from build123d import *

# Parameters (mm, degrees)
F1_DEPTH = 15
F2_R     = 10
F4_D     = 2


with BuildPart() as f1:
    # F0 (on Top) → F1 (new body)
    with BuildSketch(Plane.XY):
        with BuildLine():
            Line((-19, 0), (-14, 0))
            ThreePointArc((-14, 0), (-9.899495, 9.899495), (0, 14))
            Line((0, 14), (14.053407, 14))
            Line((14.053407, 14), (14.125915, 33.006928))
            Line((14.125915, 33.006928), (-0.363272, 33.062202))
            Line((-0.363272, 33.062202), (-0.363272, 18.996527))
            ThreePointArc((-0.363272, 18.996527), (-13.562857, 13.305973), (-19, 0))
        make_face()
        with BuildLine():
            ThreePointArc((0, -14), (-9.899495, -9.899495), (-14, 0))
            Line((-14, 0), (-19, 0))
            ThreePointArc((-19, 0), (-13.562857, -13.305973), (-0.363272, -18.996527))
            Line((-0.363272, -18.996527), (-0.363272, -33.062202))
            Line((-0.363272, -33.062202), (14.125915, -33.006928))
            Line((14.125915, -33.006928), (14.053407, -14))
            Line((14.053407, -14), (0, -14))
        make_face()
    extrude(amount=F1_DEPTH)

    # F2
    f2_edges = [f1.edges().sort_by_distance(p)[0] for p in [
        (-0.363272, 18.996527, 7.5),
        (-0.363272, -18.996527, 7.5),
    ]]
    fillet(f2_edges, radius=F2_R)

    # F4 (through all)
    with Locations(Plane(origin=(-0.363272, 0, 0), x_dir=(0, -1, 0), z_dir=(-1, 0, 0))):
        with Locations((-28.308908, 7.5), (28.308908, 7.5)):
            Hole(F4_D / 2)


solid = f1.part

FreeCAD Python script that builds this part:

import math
import FreeCAD as App
import Part
import Sketcher

V = App.Vector


def edges_at(feature, points):
    """Names of the edges that pass closest to the given points."""
    edges = feature.Shape.Edges
    near = lambda p: min(range(len(edges)), key=lambda i: edges[i].distToShape(Part.Vertex(*p))[0])
    return sorted({f"Edge{near(p) + 1}" for p in points})

doc = App.newDocument("Part")
body = doc.addObject("PartDesign::Body", "Body")

# Sketch on XY plane
sketch1 = body.newObject("Sketcher::SketchObject", "Sketch")
sketch1.AttachmentSupport = (doc.getObject("XY_Plane"), [""])
sketch1.MapMode = "FlatFace"
sketch1.addGeometry([
    Part.ArcOfCircle(Part.Circle(V(0, 0, 0), V(0, 0, 1), 14), math.radians(89.999999), math.radians(180.000001)),  # 0
    Part.LineSegment(V(0, 14, 0), V(14.053407, 14, 0)),  # 1
    Part.LineSegment(V(14.053407, 14, 0), V(14.125915, 33.006928, 0)),  # 2
    Part.LineSegment(V(14.125915, 33.006928, 0), V(-0.363272, 33.062202, 0)),  # 3
    Part.LineSegment(V(-0.363272, 33.062202, 0), V(-0.363272, 18.996527, 0)),  # 4
    Part.ArcOfCircle(Part.Circle(V(0, 0, 0), V(0, 0, 1), 19), math.radians(91.095537), math.radians(180.000001)),  # 5
    Part.ArcOfCircle(Part.Circle(V(0, 0, 0), V(0, 0, 1), 19), math.radians(179.999999), math.radians(268.904463)),  # 6
    Part.LineSegment(V(-0.363272, -18.996527, 0), V(-0.363272, -33.062202, 0)),  # 7
    Part.LineSegment(V(-0.363272, -33.062202, 0), V(14.125915, -33.006928, 0)),  # 8
    Part.LineSegment(V(14.125915, -33.006928, 0), V(14.053407, -14, 0)),  # 9
    Part.LineSegment(V(14.053407, -14, 0), V(0, -14, 0)),  # 10
    Part.ArcOfCircle(Part.Circle(V(0, 0, 0), V(0, 0, 1), 14), math.radians(179.999999), math.radians(270.000001)),  # 11
], False)
sketch1.addConstraint([
    Sketcher.Constraint("Tangent", 0, 1, 1, 1),
    Sketcher.Constraint("Coincident", 1, 2, 2, 1),
    Sketcher.Constraint("Coincident", 2, 2, 3, 1),
    Sketcher.Constraint("Coincident", 3, 2, 4, 1),
    Sketcher.Constraint("Coincident", 4, 2, 5, 1),
    Sketcher.Constraint("Tangent", 5, 2, 6, 1),
    Sketcher.Constraint("Coincident", 6, 2, 7, 1),
    Sketcher.Constraint("Coincident", 7, 2, 8, 1),
    Sketcher.Constraint("Coincident", 8, 2, 9, 1),
    Sketcher.Constraint("Coincident", 9, 2, 10, 1),
    Sketcher.Constraint("Tangent", 10, 2, 11, 2),
    Sketcher.Constraint("Tangent", 11, 1, 0, 2),
    Sketcher.Constraint("Horizontal", 1),
    Sketcher.Constraint("Vertical", 4),
    Sketcher.Constraint("Vertical", 7),
    Sketcher.Constraint("Horizontal", 10),
    Sketcher.Constraint("Coincident", 0, 3, -1, 1),
    Sketcher.Constraint("Coincident", 5, 3, -1, 1),
    Sketcher.Constraint("Equal", 5, 6),
    Sketcher.Constraint("Equal", 0, 11),
    Sketcher.Constraint("Symmetric", 3, 2, 7, 2, -1),
    Sketcher.Constraint("Symmetric", 2, 2, 8, 2, -1),
    Sketcher.Constraint("PointOnObject", 5, 2, -1),
    Sketcher.Constraint("PointOnObject", 11, 1, -1),
    Sketcher.Constraint("Perpendicular", 2, 3),
    Sketcher.Constraint("Perpendicular", 8, 9),
    Sketcher.Constraint("Radius", 0, 14.0),
    Sketcher.Constraint("Radius", 5, 19.0),
    Sketcher.Constraint("DistanceY", 0, 1, 3, 2, 19.062202),
    Sketcher.Constraint("DistanceY", 8, 2, 6, 2, 14.010401),
    Sketcher.Constraint("DistanceX", 1, 1, 1, 2, 14.053407),
    Sketcher.Constraint("DistanceY", 4, 2, 4, 1, 14.065675),
])
pad1 = body.newObject("PartDesign::Pad", "Pad")
pad1.Profile = sketch1
pad1.Length = 15
doc.recompute()

fillet = body.newObject("PartDesign::Fillet", "Fillet")
fillet.Base = (pad1, edges_at(pad1, [(-0.363, 18.997, 7.5), (-0.363, -18.997, 7.5)]))
fillet.Radius = 10

# Sketch on YZ plane
sketch2 = body.newObject("Sketcher::SketchObject", "Sketch001")
sketch2.AttachmentSupport = (doc.getObject("YZ_Plane"), [""])
sketch2.MapMode = "FlatFace"
sketch2.AttachmentOffset = App.Placement(V(0, 0, -0.363272), App.Rotation())
sketch2.addGeometry([
    Part.Circle(V(28.308908, 7.5, 0), V(0, 0, 1), 1),
    Part.Circle(V(-28.308908, 7.5, 0), V(0, 0, 1), 1),
], False)
sketch2.addConstraint([
    Sketcher.Constraint("Equal", 0, 1),
    Sketcher.Constraint("Symmetric", 0, 3, 1, 3, -2),
    Sketcher.Constraint("Diameter", 0, 2.0),
    Sketcher.Constraint("DistanceY", -1, 1, 0, 3, 7.5),
    Sketcher.Constraint("DistanceX", -1, 1, 0, 3, 28.308908),
])
doc.recompute()
hole = body.newObject("PartDesign::Hole", "Hole")
hole.Profile = sketch2
hole.ThreadType = "None"
hole.Diameter = 2
hole.DepthType = "ThroughAll"
hole.Reversed = True

doc.recompute()
